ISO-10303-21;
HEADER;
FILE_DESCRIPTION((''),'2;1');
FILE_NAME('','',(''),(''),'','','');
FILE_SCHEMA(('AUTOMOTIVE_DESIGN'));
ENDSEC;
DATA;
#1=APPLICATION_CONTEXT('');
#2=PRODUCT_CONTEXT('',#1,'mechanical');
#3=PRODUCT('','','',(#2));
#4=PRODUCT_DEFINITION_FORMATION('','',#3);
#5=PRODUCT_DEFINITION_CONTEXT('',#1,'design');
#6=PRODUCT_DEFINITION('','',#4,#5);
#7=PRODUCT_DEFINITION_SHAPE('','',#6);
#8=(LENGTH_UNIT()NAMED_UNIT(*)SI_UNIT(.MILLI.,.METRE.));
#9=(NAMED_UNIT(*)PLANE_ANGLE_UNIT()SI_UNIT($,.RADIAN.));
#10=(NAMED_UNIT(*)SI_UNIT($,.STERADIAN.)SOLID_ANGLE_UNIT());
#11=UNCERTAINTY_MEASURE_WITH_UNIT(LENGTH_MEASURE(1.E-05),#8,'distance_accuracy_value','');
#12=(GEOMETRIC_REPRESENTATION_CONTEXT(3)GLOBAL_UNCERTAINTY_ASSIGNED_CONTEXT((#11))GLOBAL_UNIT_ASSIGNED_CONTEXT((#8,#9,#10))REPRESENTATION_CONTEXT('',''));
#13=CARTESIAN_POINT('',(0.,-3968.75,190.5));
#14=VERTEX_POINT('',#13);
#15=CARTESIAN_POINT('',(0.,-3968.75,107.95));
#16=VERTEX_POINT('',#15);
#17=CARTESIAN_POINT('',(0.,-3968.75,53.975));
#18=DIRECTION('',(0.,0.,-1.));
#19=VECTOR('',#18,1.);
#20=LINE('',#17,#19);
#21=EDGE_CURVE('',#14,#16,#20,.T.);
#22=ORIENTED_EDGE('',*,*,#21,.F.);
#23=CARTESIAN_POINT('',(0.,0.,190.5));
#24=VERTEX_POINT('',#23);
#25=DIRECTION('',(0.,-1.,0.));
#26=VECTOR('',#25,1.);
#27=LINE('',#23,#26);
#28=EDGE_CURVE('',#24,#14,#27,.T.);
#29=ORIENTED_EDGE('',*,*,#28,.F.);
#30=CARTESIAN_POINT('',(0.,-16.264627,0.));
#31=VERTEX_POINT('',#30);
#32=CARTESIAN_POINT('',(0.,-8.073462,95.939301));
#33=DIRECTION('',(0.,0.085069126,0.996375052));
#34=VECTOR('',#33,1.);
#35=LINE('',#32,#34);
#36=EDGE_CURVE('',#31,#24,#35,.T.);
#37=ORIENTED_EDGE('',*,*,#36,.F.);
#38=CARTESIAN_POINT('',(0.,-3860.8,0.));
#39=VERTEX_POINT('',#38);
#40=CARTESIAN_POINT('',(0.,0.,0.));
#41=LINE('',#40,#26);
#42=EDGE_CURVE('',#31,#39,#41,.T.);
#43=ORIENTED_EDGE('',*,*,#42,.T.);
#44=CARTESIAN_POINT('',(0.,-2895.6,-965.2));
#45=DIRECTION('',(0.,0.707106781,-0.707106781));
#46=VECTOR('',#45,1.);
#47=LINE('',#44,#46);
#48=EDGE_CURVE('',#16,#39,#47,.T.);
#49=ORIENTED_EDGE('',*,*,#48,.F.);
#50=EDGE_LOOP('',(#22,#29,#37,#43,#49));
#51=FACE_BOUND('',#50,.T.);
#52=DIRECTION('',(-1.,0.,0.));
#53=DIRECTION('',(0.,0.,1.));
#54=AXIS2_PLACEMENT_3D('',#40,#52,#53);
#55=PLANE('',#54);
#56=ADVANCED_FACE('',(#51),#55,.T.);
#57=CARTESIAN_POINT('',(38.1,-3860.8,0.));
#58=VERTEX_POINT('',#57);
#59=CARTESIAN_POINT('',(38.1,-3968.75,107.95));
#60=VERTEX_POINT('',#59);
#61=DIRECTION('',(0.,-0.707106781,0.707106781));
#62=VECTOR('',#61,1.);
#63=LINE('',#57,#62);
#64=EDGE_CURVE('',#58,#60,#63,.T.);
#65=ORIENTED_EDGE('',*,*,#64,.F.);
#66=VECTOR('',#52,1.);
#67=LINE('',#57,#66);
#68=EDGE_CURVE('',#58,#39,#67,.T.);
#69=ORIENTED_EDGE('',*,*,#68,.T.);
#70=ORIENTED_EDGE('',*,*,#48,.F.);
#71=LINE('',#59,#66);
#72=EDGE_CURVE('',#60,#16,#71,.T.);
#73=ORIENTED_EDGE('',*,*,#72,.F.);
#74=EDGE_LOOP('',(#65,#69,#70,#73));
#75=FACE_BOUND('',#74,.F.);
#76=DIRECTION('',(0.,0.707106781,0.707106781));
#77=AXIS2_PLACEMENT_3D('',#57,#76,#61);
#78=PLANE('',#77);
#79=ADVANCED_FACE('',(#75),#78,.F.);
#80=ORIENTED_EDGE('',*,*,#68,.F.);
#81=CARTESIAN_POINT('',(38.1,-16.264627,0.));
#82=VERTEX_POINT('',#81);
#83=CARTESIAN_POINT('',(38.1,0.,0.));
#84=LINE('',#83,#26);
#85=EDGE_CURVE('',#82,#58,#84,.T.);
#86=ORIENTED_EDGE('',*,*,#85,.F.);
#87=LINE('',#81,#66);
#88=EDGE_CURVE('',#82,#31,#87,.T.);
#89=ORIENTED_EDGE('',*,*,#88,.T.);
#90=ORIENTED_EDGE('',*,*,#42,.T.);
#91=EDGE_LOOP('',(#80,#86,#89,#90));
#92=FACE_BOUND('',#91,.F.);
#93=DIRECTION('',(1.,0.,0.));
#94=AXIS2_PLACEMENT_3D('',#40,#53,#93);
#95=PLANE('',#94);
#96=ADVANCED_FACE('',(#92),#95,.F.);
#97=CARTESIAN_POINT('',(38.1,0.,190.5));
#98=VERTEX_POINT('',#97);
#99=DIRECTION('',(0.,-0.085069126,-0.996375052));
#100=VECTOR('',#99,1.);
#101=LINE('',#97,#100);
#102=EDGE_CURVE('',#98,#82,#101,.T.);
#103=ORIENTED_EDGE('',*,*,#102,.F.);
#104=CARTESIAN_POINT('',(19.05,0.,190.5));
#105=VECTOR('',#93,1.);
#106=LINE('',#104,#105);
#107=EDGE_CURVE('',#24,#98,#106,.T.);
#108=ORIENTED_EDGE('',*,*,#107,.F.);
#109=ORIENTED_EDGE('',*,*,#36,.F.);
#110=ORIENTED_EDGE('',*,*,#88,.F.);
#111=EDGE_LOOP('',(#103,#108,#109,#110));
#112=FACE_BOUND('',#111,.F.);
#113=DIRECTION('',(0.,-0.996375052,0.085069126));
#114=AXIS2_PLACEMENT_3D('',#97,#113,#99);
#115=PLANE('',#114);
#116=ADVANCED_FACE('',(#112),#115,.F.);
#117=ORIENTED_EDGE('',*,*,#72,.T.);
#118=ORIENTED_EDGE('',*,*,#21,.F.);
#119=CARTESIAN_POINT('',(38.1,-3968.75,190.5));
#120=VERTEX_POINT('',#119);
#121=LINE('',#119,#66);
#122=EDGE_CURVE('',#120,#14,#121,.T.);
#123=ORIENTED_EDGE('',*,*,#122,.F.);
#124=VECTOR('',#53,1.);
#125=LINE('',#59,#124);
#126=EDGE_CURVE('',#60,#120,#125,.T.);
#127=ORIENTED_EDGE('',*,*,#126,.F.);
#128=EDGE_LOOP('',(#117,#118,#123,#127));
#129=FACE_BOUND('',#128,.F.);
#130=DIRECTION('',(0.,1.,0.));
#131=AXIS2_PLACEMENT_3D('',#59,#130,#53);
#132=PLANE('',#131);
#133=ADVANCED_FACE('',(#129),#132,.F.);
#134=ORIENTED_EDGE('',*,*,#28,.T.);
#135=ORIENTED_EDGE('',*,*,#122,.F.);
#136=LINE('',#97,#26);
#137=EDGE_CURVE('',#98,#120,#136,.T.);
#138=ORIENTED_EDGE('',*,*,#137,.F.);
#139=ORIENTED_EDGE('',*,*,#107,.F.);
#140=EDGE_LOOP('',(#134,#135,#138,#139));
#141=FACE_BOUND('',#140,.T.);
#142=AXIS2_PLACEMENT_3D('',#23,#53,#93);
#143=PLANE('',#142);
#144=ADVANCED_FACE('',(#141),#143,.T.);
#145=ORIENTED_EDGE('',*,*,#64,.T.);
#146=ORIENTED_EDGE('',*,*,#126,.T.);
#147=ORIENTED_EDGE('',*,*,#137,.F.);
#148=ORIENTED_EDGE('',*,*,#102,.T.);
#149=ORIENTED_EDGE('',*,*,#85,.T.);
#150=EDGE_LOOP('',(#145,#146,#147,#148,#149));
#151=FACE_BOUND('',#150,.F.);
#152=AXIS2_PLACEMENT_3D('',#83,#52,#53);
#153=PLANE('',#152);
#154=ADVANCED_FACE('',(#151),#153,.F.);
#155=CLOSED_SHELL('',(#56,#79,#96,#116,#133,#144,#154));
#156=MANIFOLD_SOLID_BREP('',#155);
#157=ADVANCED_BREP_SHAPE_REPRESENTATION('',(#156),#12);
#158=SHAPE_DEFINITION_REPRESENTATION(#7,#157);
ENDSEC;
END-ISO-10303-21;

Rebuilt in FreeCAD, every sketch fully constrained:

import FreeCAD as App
import Part
import Sketcher

V = App.Vector
Q = App.Units.Quantity

doc = App.newDocument("Part")
params = doc.addObject("Spreadsheet::Sheet", "Params")
for row, (alias, value) in enumerate([
    ("sketch1_width", "1.5 in"),
    ("sketch1_height", "7.5 in"),
    ("pad1_length", "168 in"),
    ("sketch2_height", "7.5 in"),
    ("sketch3_width", "16 in"),
    ("sketch3_height", "7.5 in"),
    ("sketch3_width2", "11.75 in"),
], start=1):
    params.set(f"A{row}", alias)
    params.set(f"B{row}", "=" + value)
    params.setAlias(f"B{row}", alias)

body = doc.addObject("PartDesign::Body", "Body")

# Sketch on XZ plane
sketch1 = body.newObject("Sketcher::SketchObject", "Sketch")
sketch1.AttachmentSupport = (doc.getObject("XZ_Plane"), [""])
sketch1.MapMode = "FlatFace"
sketch1.addGeometry(Part.LineSegment(V(0, 190.5, 0), V(0, 0, 0)), False)
sketch1.addGeometry(Part.LineSegment(V(0, 0, 0), V(38.1, 0, 0)), False)
sketch1.addGeometry(Part.LineSegment(V(38.1, 0, 0), V(38.1, 190.5, 0)), False)
sketch1.addGeometry(Part.LineSegment(V(38.1, 190.5, 0), V(0, 190.5, 0)), False)
sketch1.addConstraint(Sketcher.Constraint("Coincident", 0, 2, 1, 1))
sketch1.addConstraint(Sketcher.Constraint("Coincident", 1, 2, 2, 1))
sketch1.addConstraint(Sketcher.Constraint("Coincident", 2, 2, 3, 1))
sketch1.addConstraint(Sketcher.Constraint("Coincident", 3, 2, 0, 1))
sketch1.addConstraint(Sketcher.Constraint("Vertical", 0))
sketch1.addConstraint(Sketcher.Constraint("Horizontal", 1))
sketch1.addConstraint(Sketcher.Constraint("Vertical", 2))
sketch1.addConstraint(Sketcher.Constraint("Horizontal", 3))
sketch1.addConstraint(Sketcher.Constraint("Coincident", 0, 2, -1, 1))
sketch1.addConstraint(Sketcher.Constraint("DistanceX", 1, 1, 1, 2, Q("1.5 in")))
sketch1.addConstraint(Sketcher.Constraint("DistanceY", 0, 2, 0, 1, Q("7.5 in")))
sketch1.setExpression("Constraints[9]", "Params.sketch1_width")
sketch1.setExpression("Constraints[10]", "Params.sketch1_height")
pad1 = body.newObject("PartDesign::Pad", "Pad")
pad1.Profile = sketch1
pad1.setExpression("Length", "Params.pad1_length")

# Sketch on YZ plane
sketch2 = body.newObject("Sketcher::SketchObject", "Sketch001")
sketch2.AttachmentSupport = (doc.getObject("YZ_Plane"), [""])
sketch2.MapMode = "FlatFace"
sketch2.AttachmentOffset = App.Placement(V(0, 0, 1.5 * 25.4), App.Rotation())
sketch2.addGeometry(Part.LineSegment(V(0, 0, 0), V(0, 190.5, 0)), False)
sketch2.addGeometry(Part.LineSegment(V(0, 190.5, 0), V(-16.264627, 0, 0)), False)
sketch2.addGeometry(Part.LineSegment(V(-16.264627, 0, 0), V(0, 0, 0)), False)
sketch2.addConstraint(Sketcher.Constraint("Coincident", 0, 2, 1, 1))
sketch2.addConstraint(Sketcher.Constraint("Coincident", 1, 2, 2, 1))
sketch2.addConstraint(Sketcher.Constraint("Coincident", 2, 2, 0, 1))
sketch2.addConstraint(Sketcher.Constraint("Vertical", 0))
sketch2.addConstraint(Sketcher.Constraint("Horizontal", 2))
sketch2.addConstraint(Sketcher.Constraint("Coincident", 2, 2, -1, 1))
sketch2.addConstraint(Sketcher.Constraint("DistanceY", 0, 1, 0, 2, Q("7.5 in")))
sketch2.addConstraint(Sketcher.Constraint("Angle", 1, Q("-94.88 deg")))
sketch2.setExpression("Constraints[6]", "Params.sketch2_height")
pocket1 = body.newObject("PartDesign::Pocket", "Pocket")
pocket1.Profile = sketch2
pocket1.Type = "ThroughAll"

# Sketch on YZ plane
sketch3 = body.newObject("Sketcher::SketchObject", "Sketch002")
sketch3.AttachmentSupport = (doc.getObject("YZ_Plane"), [""])
sketch3.MapMode = "FlatFace"
sketch3.AttachmentOffset = App.Placement(V(0, 0, 1.5 * 25.4), App.Rotation())
sketch3.addGeometry(Part.LineSegment(V(-3968.75, 107.95, 0), V(-3968.75, 190.5, 0)), False)
sketch3.addGeometry(Part.LineSegment(V(-3968.75, 190.5, 0), V(-4267.2, 190.5, 0)), False)
sketch3.addGeometry(Part.LineSegment(V(-4267.2, 190.5, 0), V(-4267.2, 0, 0)), False)
sketch3.addGeometry(Part.LineSegment(V(-4267.2, 0, 0), V(-3860.8, 0, 0)), False)
sketch3.addGeometry(Part.LineSegment(V(-3860.8, 0, 0), V(-3968.75, 107.95, 0)), False)
sketch3.addConstraint(Sketcher.Constraint("Coincident", 0, 2, 1, 1))
sketch3.addConstraint(Sketcher.Constraint("Coincident", 1, 2, 2, 1))
sketch3.addConstraint(Sketcher.Constraint("Coincident", 2, 2, 3, 1))
sketch3.addConstraint(Sketcher.Constraint("Coincident", 3, 2, 4, 1))
sketch3.addConstraint(Sketcher.Constraint("Coincident", 4, 2, 0, 1))
sketch3.addConstraint(Sketcher.Constraint("Vertical", 0))
sketch3.addConstraint(Sketcher.Constraint("Horizontal", 1))
sketch3.addConstraint(Sketcher.Constraint("Vertical", 2))
sketch3.addConstraint(Sketcher.Constraint("Horizontal", 3))
sketch3.addConstraint(Sketcher.Constraint("PointOnObject", 2, 2, -1))
sketch3.addConstraint(Sketcher.Constraint("DistanceX", 3, 1, 3, 2, Q("16 in")))
sketch3.addConstraint(Sketcher.Constraint("DistanceY", 2, 2, 2, 1, Q("7.5 in")))
sketch3.addConstraint(Sketcher.Constraint("DistanceX", 1, 2, -1, 1, Q("168 in")))
sketch3.addConstraint(Sketcher.Constraint("Angle", 4, Q("135 deg")))
sketch3.addConstraint(Sketcher.Constraint("DistanceX", 1, 2, 1, 1, Q("11.75 in")))
sketch3.setExpression("Constraints[10]", "Params.sketch3_width")
sketch3.setExpression("Constraints[11]", "Params.sketch3_height")
sketch3.setExpression("Constraints[14]", "Params.sketch3_width2")
pocket2 = body.newObject("PartDesign::Pocket", "Pocket001")
pocket2.Profile = sketch3
pocket2.Type = "ThroughAll"

doc.recompute()
